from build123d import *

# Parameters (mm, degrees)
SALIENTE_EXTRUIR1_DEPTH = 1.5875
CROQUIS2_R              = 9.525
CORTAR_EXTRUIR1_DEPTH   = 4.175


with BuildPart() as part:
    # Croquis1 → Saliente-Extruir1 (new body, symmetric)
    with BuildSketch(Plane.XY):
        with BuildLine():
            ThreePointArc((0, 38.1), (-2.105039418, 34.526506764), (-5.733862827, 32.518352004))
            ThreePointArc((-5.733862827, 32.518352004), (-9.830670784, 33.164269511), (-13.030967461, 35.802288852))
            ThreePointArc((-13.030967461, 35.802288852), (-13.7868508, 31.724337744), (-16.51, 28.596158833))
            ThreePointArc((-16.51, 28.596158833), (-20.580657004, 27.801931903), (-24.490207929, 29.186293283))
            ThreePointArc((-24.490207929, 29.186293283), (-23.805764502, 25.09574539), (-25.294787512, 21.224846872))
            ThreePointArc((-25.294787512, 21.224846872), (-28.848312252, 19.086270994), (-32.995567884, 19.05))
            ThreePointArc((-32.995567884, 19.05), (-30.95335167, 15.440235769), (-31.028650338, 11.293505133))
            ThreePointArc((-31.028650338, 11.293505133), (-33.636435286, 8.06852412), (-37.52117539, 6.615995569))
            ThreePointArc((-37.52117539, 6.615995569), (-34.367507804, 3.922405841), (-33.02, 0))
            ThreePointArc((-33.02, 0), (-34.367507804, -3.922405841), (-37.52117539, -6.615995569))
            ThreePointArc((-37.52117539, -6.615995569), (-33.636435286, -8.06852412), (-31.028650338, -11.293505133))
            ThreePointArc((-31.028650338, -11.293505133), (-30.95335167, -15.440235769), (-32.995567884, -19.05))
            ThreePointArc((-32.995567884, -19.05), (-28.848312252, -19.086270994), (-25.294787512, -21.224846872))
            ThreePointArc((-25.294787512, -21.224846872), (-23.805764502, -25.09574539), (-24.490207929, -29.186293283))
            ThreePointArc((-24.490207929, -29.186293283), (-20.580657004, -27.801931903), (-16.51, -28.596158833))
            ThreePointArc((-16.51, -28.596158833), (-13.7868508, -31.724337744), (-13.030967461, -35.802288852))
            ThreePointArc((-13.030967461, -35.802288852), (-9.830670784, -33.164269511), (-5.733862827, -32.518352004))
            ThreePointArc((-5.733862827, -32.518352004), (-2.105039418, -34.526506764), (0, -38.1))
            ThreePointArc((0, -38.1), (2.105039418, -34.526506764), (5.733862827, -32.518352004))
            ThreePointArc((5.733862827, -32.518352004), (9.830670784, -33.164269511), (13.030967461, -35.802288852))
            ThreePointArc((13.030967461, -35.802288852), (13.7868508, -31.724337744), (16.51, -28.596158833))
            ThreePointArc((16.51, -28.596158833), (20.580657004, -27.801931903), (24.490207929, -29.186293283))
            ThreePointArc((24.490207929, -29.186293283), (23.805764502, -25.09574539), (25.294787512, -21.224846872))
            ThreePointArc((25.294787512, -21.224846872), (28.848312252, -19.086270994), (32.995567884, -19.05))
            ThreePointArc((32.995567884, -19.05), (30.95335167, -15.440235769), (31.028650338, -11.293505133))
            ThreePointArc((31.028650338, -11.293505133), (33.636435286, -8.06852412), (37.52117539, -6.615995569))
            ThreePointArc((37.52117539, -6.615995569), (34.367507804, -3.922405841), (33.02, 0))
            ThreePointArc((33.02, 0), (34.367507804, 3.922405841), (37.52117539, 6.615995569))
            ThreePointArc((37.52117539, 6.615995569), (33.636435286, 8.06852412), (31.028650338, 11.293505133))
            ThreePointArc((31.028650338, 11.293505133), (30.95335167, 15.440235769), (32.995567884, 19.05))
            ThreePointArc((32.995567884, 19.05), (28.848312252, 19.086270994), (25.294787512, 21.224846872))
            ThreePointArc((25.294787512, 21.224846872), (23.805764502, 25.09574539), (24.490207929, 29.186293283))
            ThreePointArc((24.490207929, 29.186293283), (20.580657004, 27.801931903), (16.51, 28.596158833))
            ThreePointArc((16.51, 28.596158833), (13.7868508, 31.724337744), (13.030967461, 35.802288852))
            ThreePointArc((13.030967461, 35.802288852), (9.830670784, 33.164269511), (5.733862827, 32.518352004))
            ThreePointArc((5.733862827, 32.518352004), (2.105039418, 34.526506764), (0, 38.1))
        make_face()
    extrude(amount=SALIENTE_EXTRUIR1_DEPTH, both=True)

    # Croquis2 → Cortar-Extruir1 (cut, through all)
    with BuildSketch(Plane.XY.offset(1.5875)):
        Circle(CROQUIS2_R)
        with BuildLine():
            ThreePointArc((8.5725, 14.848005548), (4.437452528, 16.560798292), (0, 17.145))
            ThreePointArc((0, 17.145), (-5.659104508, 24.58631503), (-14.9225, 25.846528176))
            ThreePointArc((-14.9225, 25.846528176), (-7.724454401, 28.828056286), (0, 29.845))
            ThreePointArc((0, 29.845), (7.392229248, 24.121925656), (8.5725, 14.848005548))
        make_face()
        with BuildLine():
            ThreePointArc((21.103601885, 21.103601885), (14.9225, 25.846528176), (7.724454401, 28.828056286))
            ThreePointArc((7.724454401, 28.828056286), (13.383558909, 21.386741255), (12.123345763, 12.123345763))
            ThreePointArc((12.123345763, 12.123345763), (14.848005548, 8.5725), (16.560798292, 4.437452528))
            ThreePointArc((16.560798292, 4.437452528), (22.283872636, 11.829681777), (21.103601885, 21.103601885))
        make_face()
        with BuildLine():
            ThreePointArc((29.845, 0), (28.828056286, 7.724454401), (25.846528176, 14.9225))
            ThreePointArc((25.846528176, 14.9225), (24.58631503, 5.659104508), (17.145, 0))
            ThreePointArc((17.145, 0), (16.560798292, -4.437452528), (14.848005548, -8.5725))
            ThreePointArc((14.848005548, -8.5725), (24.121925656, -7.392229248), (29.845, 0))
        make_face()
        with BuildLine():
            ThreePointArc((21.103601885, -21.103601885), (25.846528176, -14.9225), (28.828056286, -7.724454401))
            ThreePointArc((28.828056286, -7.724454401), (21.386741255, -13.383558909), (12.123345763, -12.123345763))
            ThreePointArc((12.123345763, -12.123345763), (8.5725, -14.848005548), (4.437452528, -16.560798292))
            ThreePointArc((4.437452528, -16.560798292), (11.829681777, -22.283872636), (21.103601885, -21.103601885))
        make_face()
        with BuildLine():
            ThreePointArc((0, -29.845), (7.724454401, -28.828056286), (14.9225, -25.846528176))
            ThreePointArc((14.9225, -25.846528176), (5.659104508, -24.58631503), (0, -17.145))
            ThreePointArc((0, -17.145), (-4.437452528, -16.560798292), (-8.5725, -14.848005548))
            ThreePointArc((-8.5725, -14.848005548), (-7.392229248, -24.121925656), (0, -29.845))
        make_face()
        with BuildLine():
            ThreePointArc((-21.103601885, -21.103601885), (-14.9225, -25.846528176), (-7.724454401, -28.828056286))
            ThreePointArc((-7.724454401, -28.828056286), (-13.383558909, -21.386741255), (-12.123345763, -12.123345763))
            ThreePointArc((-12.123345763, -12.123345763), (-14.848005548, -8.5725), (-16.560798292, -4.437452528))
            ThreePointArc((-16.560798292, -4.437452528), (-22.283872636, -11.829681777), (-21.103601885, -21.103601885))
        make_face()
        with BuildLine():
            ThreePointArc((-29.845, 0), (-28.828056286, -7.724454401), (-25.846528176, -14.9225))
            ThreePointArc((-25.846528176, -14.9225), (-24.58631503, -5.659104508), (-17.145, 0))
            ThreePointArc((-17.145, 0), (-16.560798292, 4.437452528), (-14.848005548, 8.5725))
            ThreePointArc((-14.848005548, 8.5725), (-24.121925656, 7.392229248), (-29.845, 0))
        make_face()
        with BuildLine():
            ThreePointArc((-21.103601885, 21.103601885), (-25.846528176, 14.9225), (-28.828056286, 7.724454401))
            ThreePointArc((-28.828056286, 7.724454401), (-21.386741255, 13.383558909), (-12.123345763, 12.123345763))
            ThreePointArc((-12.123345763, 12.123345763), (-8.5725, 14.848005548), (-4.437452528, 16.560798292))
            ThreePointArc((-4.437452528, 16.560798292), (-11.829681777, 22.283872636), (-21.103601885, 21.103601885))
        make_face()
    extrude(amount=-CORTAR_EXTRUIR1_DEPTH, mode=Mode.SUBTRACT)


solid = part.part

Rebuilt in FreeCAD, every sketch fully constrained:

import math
import FreeCAD as App
import Part
import Sketcher
Q = App.Units.Quantity

doc = App.newDocument("Part")
body = doc.addObject("PartDesign::Body", "Body")

# Sketch on XY plane
sketch1 = doc.addObject("Sketcher::SketchObject", "Sketch")
body.addObject(sketch1)
sketch1.AttachmentSupport = (doc.XY_Plane, [""])
sketch1.MapMode = "FlatFace"
sketch1.addGeometry([
    Part.ArcOfCircle(Part.Circle(App.Vector(-8, 40, 0), App.Vector(0, 0, 1), 8), math.radians(-76), math.radians(-15)),  # 0
    Part.ArcOfCircle(Part.Circle(App.Vector(-7, 40, 0), App.Vector(0, 0, 1), 8), math.radians(-145), math.radians(-84)),  # 1
    Part.ArcOfCircle(Part.Circle(App.Vector(-21, 35, 0), App.Vector(0, 0, 1), 8), math.radians(-56), math.radians(5)),  # 2
    Part.ArcOfCircle(Part.Circle(App.Vector(-20, 36, 0), App.Vector(0, 0, 1), 8), math.radians(-125), math.radians(-64)),  # 3
    Part.ArcOfCircle(Part.Circle(App.Vector(-32, 26, 0), App.Vector(0, 0, 1), 8), math.radians(-36), math.radians(25)),  # 4
    Part.ArcOfCircle(Part.Circle(App.Vector(-31, 27, 0), App.Vector(0, 0, 1), 8), math.radians(-105), math.radians(-44)),  # 5
    Part.ArcOfCircle(Part.Circle(App.Vector(-39, 14, 0), App.Vector(0, 0, 1), 8), math.radians(-16), math.radians(45)),  # 6
    Part.ArcOfCircle(Part.Circle(App.Vector(-38, 14, 0), App.Vector(0, 0, 1), 8), math.radians(-85), math.radians(-24)),  # 7
    Part.ArcOfCircle(Part.Circle(App.Vector(-41, -1, 0), App.Vector(0, 0, 1), 8), math.radians(4), math.radians(65)),  # 8
    Part.ArcOfCircle(Part.Circle(App.Vector(-41, 1, 0), App.Vector(0, 0, 1), 8), math.radians(-65), math.radians(-4)),  # 9
    Part.ArcOfCircle(Part.Circle(App.Vector(-38, -14, 0), App.Vector(0, 0, 1), 8), math.radians(24), math.radians(85)),  # 10
    Part.ArcOfCircle(Part.Circle(App.Vector(-39, -14, 0), App.Vector(0, 0, 1), 8), math.radians(-45), math.radians(16)),  # 11
    Part.ArcOfCircle(Part.Circle(App.Vector(-31, -27, 0), App.Vector(0, 0, 1), 8), math.radians(44), math.radians(105)),  # 12
    Part.ArcOfCircle(Part.Circle(App.Vector(-32, -26, 0), App.Vector(0, 0, 1), 8), math.radians(-25), math.radians(36)),  # 13
    Part.ArcOfCircle(Part.Circle(App.Vector(-20, -36, 0), App.Vector(0, 0, 1), 8), math.radians(64), math.radians(125)),  # 14
    Part.ArcOfCircle(Part.Circle(App.Vector(-21, -35, 0), App.Vector(0, 0, 1), 8), math.radians(-5), math.radians(56)),  # 15
    Part.ArcOfCircle(Part.Circle(App.Vector(-7, -40, 0), App.Vector(0, 0, 1), 8), math.radians(84), math.radians(145)),  # 16
    Part.ArcOfCircle(Part.Circle(App.Vector(-8, -40, 0), App.Vector(0, 0, 1), 8), math.radians(15), math.radians(76)),  # 17
    Part.ArcOfCircle(Part.Circle(App.Vector(8, -40, 0), App.Vector(0, 0, 1), 8), math.radians(104), math.radians(165)),  # 18
    Part.ArcOfCircle(Part.Circle(App.Vector(7, -40, 0), App.Vector(0, 0, 1), 8), math.radians(35), math.radians(96)),  # 19
    Part.ArcOfCircle(Part.Circle(App.Vector(21, -35, 0), App.Vector(0, 0, 1), 8), math.radians(124), math.radians(185)),  # 20
    Part.ArcOfCircle(Part.Circle(App.Vector(20, -36, 0), App.Vector(0, 0, 1), 8), math.radians(55), math.radians(116)),  # 21
    Part.ArcOfCircle(Part.Circle(App.Vector(32, -26, 0), App.Vector(0, 0, 1), 8), math.radians(144), math.radians(205)),  # 22
    Part.ArcOfCircle(Part.Circle(App.Vector(31, -27, 0), App.Vector(0, 0, 1), 8), math.radians(75), math.radians(136)),  # 23
    Part.ArcOfCircle(Part.Circle(App.Vector(39, -14, 0), App.Vector(0, 0, 1), 8), math.radians(164), math.radians(225)),  # 24
    Part.ArcOfCircle(Part.Circle(App.Vector(38, -14, 0), App.Vector(0, 0, 1), 8), math.radians(95), math.radians(156)),  # 25
    Part.ArcOfCircle(Part.Circle(App.Vector(41, 1, 0), App.Vector(0, 0, 1), 8), math.radians(-176), math.radians(-115)),  # 26
    Part.ArcOfCircle(Part.Circle(App.Vector(41, -1, 0), App.Vector(0, 0, 1), 8), math.radians(115), math.radians(176)),  # 27
    Part.ArcOfCircle(Part.Circle(App.Vector(38, 14, 0), App.Vector(0, 0, 1), 8), math.radians(-156), math.radians(-95)),  # 28
    Part.ArcOfCircle(Part.Circle(App.Vector(39, 14, 0), App.Vector(0, 0, 1), 8), math.radians(135), math.radians(196)),  # 29
    Part.ArcOfCircle(Part.Circle(App.Vector(31, 27, 0), App.Vector(0, 0, 1), 8), math.radians(-136), math.radians(-75)),  # 30
    Part.ArcOfCircle(Part.Circle(App.Vector(32, 26, 0), App.Vector(0, 0, 1), 8), math.radians(155), math.radians(216)),  # 31
    Part.ArcOfCircle(Part.Circle(App.Vector(20, 36, 0), App.Vector(0, 0, 1), 8), math.radians(-116), math.radians(-55)),  # 32
    Part.ArcOfCircle(Part.Circle(App.Vector(21, 35, 0), App.Vector(0, 0, 1), 8), math.radians(175), math.radians(236)),  # 33
    Part.ArcOfCircle(Part.Circle(App.Vector(7, 40, 0), App.Vector(0, 0, 1), 8), math.radians(-96), math.radians(-35)),  # 34
    Part.ArcOfCircle(Part.Circle(App.Vector(8, 40, 0), App.Vector(0, 0, 1), 8), math.radians(-165), math.radians(-104)),  # 35
], False)
sketch1.addConstraint([
    Sketcher.Constraint("Coincident", 0, 1, 1, 2),
    Sketcher.Constraint("Coincident", 1, 1, 2, 2),
    Sketcher.Constraint("Coincident", 2, 1, 3, 2),
    Sketcher.Constraint("Coincident", 3, 1, 4, 2),
    Sketcher.Constraint("Coincident", 4, 1, 5, 2),
    Sketcher.Constraint("Coincident", 5, 1, 6, 2),
    Sketcher.Constraint("Coincident", 6, 1, 7, 2),
    Sketcher.Constraint("Coincident", 7, 1, 8, 2),
    Sketcher.Constraint("Coincident", 8, 1, 9, 2),
    Sketcher.Constraint("Coincident", 9, 1, 10, 2),
    Sketcher.Constraint("Coincident", 10, 1, 11, 2),
    Sketcher.Constraint("Coincident", 11, 1, 12, 2),
    Sketcher.Constraint("Coincident", 12, 1, 13, 2),
    Sketcher.Constraint("Coincident", 13, 1, 14, 2),
    Sketcher.Constraint("Coincident", 14, 1, 15, 2),
    Sketcher.Constraint("Coincident", 15, 1, 16, 2),
    Sketcher.Constraint("Coincident", 16, 1, 17, 2),
    Sketcher.Constraint("Coincident", 17, 1, 18, 2),
    Sketcher.Constraint("Coincident", 18, 1, 19, 2),
    Sketcher.Constraint("Coincident", 19, 1, 20, 2),
    Sketcher.Constraint("Coincident", 20, 1, 21, 2),
    Sketcher.Constraint("Coincident", 21, 1, 22, 2),
    Sketcher.Constraint("Coincident", 22, 1, 23, 2),
    Sketcher.Constraint("Coincident", 23, 1, 24, 2),
    Sketcher.Constraint("Coincident", 24, 1, 25, 2),
    Sketcher.Constraint("Coincident", 25, 1, 26, 2),
    Sketcher.Constraint("Coincident", 26, 1, 27, 2),
    Sketcher.Constraint("Coincident", 27, 1, 28, 2),
    Sketcher.Constraint("Coincident", 28, 1, 29, 2),
    Sketcher.Constraint("Coincident", 29, 1, 30, 2),
    Sketcher.Constraint("Coincident", 30, 1, 31, 2),
    Sketcher.Constraint("Coincident", 31, 1, 32, 2),
    Sketcher.Constraint("Coincident", 32, 1, 33, 2),
    Sketcher.Constraint("Coincident", 33, 1, 34, 2),
    Sketcher.Constraint("Coincident", 34, 1, 35, 2),
    Sketcher.Constraint("Coincident", 35, 1, 0, 2),
    Sketcher.Constraint("Equal", 0, 1),
    Sketcher.Constraint("Equal", 1, 2),
    Sketcher.Constraint("Equal", 2, 3),
    Sketcher.Constraint("Equal", 3, 4),
    Sketcher.Constraint("Equal", 4, 5),
    Sketcher.Constraint("Equal", 5, 6),
    Sketcher.Constraint("Equal", 6, 7),
    Sketcher.Constraint("Equal", 7, 8),
    Sketcher.Constraint("Equal", 8, 9),
    Sketcher.Constraint("Equal", 9, 10),
    Sketcher.Constraint("Equal", 10, 11),
    Sketcher.Constraint("Equal", 11, 12),
    Sketcher.Constraint("Equal", 12, 13),
    Sketcher.Constraint("Equal", 13, 14),
    Sketcher.Constraint("Equal", 14, 15),
    Sketcher.Constraint("Equal", 15, 16),
    Sketcher.Constraint("Equal", 16, 17),
    Sketcher.Constraint("Equal", 17, 18),
    Sketcher.Constraint("Equal", 18, 19),
    Sketcher.Constraint("Equal", 19, 20),
    Sketcher.Constraint("Equal", 20, 21),
    Sketcher.Constraint("Equal", 21, 22),
    Sketcher.Constraint("Equal", 22, 23),
    Sketcher.Constraint("Equal", 23, 24),
    Sketcher.Constraint("Equal", 24, 25),
    Sketcher.Constraint("Equal", 25, 26),
    Sketcher.Constraint("Equal", 26, 27),
    Sketcher.Constraint("Equal", 27, 28),
    Sketcher.Constraint("Equal", 28, 29),
    Sketcher.Constraint("Equal", 29, 30),
    Sketcher.Constraint("Equal", 30, 31),
    Sketcher.Constraint("Equal", 31, 32),
    Sketcher.Constraint("Equal", 32, 33),
    Sketcher.Constraint("Equal", 33, 34),
    Sketcher.Constraint("Equal", 34, 35),
    Sketcher.Constraint("Symmetric", 0, 3, 18, 3, -1, 1),
    Sketcher.Constraint("Symmetric", 1, 3, 19, 3, -1, 1),
    Sketcher.Constraint("Symmetric", 2, 3, 20, 3, -1, 1),
    Sketcher.Constraint("Symmetric", 3, 3, 21, 3, -1, 1),
    Sketcher.Constraint("Symmetric", 4, 3, 22, 3, -1, 1),
    Sketcher.Constraint("Symmetric", 5, 3, 23, 3, -1, 1),
    Sketcher.Constraint("Symmetric", 6, 3, 24, 3, -1, 1),
    Sketcher.Constraint("Symmetric", 7, 3, 25, 3, -1, 1),
    Sketcher.Constraint("Symmetric", 8, 3, 26, 3, -1, 1),
    Sketcher.Constraint("Symmetric", 9, 3, 27, 3, -1, 1),
    Sketcher.Constraint("Symmetric", 10, 3, 28, 3, -1, 1),
    Sketcher.Constraint("Symmetric", 11, 3, 29, 3, -1, 1),
    Sketcher.Constraint("Symmetric", 12, 3, 30, 3, -1, 1),
    Sketcher.Constraint("Symmetric", 13, 3, 31, 3, -1, 1),
    Sketcher.Constraint("Symmetric", 14, 3, 32, 3, -1, 1),
    Sketcher.Constraint("Symmetric", 15, 3, 33, 3, -1, 1),
    Sketcher.Constraint("Symmetric", 16, 3, 34, 3, -1, 1),
    Sketcher.Constraint("Symmetric", 17, 3, 35, 3, -1, 1),
    Sketcher.Constraint("Symmetric", 17, 3, 18, 3, -2),
    Sketcher.Constraint("Symmetric", 16, 3, 19, 3, -2),
    Sketcher.Constraint("Symmetric", 15, 3, 20, 3, -2),
    Sketcher.Constraint("Symmetric", 14, 3, 21, 3, -2),
    Sketcher.Constraint("Symmetric", 13, 3, 22, 3, -2),
    Sketcher.Constraint("Symmetric", 12, 3, 23, 3, -2),
    Sketcher.Constraint("Symmetric", 11, 3, 24, 3, -2),
    Sketcher.Constraint("Symmetric", 10, 3, 25, 3, -2),
    Sketcher.Constraint("Symmetric", 9, 3, 26, 3, -2),
    Sketcher.Constraint("Radius", 0, Q("0.31 in")),
    Sketcher.Constraint("DistanceX", 8, 1, -1, 1, Q("1.3 in")),
    Sketcher.Constraint("DistanceY", 17, 1, -1, 1, Q("1.5 in")),
    Sketcher.Constraint("DistanceX", 2, 1, -1, 1, Q("0.65 in")),
    Sketcher.Constraint("DistanceY", -1, 1, 5, 1, Q("0.75 in")),
    Sketcher.Constraint("DistanceX", 3, 3, -1, 1, Q("0.7874001 in")),
    Sketcher.Constraint("DistanceY", -1, 1, 0, 3, 40.168652),
    Sketcher.Constraint("DistanceY", -1, 1, 1, 3, 40.344651),
    Sketcher.Constraint("DistanceY", -1, 1, 2, 3, 35.14772),
    Sketcher.Constraint("DistanceY", -1, 1, 3, 3, 35.65449),
    Sketcher.Constraint("DistanceX", 4, 3, -1, 1, 31.639861),
    Sketcher.Constraint("DistanceX", 5, 3, -1, 1, 30.988371),
    Sketcher.Constraint("DistanceY", -1, 1, 5, 3, 26.663871),
    Sketcher.Constraint("DistanceY", -1, 1, 6, 3, 13.504781),
    Sketcher.Constraint("DistanceY", 8, 3, -1, 1, 0.50677),
    Sketcher.Constraint("DistanceY", -1, 1, 1, 1, 35.802289),
    Sketcher.Constraint("DistanceX", 6, 1, -1, 1, 31.02865),
    Sketcher.Constraint("DistanceY", -1, 1, 4, 3, 25.887455),
    Sketcher.Constraint("DistanceX", 7, 3, -1, 1, 38.239124),
])
pad1 = doc.addObject("PartDesign::Pad", "Pad")
body.addObject(pad1)
pad1.Profile = sketch1
pad1.Length = Q("0.125 in")
pad1.Midplane = True

# Sketch on XY plane
sketch2 = doc.addObject("Sketcher::SketchObject", "Sketch001")
body.addObject(sketch2)
sketch2.AttachmentSupport = (doc.XY_Plane, [""])
sketch2.MapMode = "FlatFace"
sketch2.AttachmentOffset = App.Placement(App.Vector(0, 0, 0.0625 * 25.4), App.Rotation())
sketch2.addGeometry([
    Part.Circle(App.Vector(0, 0, 0), App.Vector(0, 0, 1), 10),  # 0
    Part.ArcOfCircle(Part.Circle(App.Vector(0, 0, 0), App.Vector(0, 0, 1), 17), math.radians(60), math.radians(90)),  # 1
    Part.ArcOfCircle(Part.Circle(App.Vector(-3, 18, 0), App.Vector(0, 0, 1), 12), math.radians(-15), math.radians(75)),  # 2
    Part.ArcOfCircle(Part.Circle(App.Vector(0, 0, 0), App.Vector(0, 0, 1), 30), math.radians(90), math.radians(120)),  # 3
    Part.ArcOfCircle(Part.Circle(App.Vector(-12, 14, 0), App.Vector(0, 0, 1), 12), math.radians(15), math.radians(105)),  # 4
    Part.ArcOfCircle(Part.Circle(App.Vector(0, 0, 0), App.Vector(0, 0, 1), 30), math.radians(45), math.radians(75)),  # 5
    Part.ArcOfCircle(Part.Circle(App.Vector(2, 18, 0), App.Vector(0, 0, 1), 12), math.radians(-30), math.radians(60)),  # 6
    Part.ArcOfCircle(Part.Circle(App.Vector(0, 0, 0), App.Vector(0, 0, 1), 17), math.radians(15), math.radians(45)),  # 7
    Part.ArcOfCircle(Part.Circle(App.Vector(10, 15, 0), App.Vector(0, 0, 1), 12), math.radians(-60), math.radians(30)),  # 8
    Part.ArcOfCircle(Part.Circle(App.Vector(0, 0, 0), App.Vector(0, 0, 1), 30), math.radians(0), math.radians(30)),  # 9
    Part.ArcOfCircle(Part.Circle(App.Vector(14, 12, 0), App.Vector(0, 0, 1), 12), math.radians(-75), math.radians(15)),  # 10
    Part.ArcOfCircle(Part.Circle(App.Vector(0, 0, 0), App.Vector(0, 0, 1), 17), math.radians(-30), math.radians(0)),  # 11
    Part.ArcOfCircle(Part.Circle(App.Vector(18, 3, 0), App.Vector(0, 0, 1), 12), math.radians(-105), math.radians(-15)),  # 12
    Part.ArcOfCircle(Part.Circle(App.Vector(0, 0, 0), App.Vector(0, 0, 1), 30), math.radians(-45), math.radians(-15)),  # 13
    Part.ArcOfCircle(Part.Circle(App.Vector(18, -2, 0), App.Vector(0, 0, 1), 12), math.radians(-120), math.radians(-30)),  # 14
    Part.ArcOfCircle(Part.Circle(App.Vector(0, 0, 0), App.Vector(0, 0, 1), 17), math.radians(-75), math.radians(-45)),  # 15
    Part.ArcOfCircle(Part.Circle(App.Vector(15, -10, 0), App.Vector(0, 0, 1), 12), math.radians(-150), math.radians(-60)),  # 16
    Part.ArcOfCircle(Part.Circle(App.Vector(0, 0, 0), App.Vector(0, 0, 1), 30), math.radians(-90), math.radians(-60)),  # 17
    Part.ArcOfCircle(Part.Circle(App.Vector(12, -14, 0), App.Vector(0, 0, 1), 12), math.radians(-165), math.radians(-75)),  # 18
    Part.ArcOfCircle(Part.Circle(App.Vector(0, 0, 0), App.Vector(0, 0, 1), 17), math.radians(-120), math.radians(-90)),  # 19
    Part.ArcOfCircle(Part.Circle(App.Vector(3, -18, 0), App.Vector(0, 0, 1), 12), math.radians(165), math.radians(255)),  # 20
    Part.ArcOfCircle(Part.Circle(App.Vector(0, 0, 0), App.Vector(0, 0, 1), 30), math.radians(-135), math.radians(-105)),  # 21
    Part.ArcOfCircle(Part.Circle(App.Vector(-2, -18, 0), App.Vector(0, 0, 1), 12), math.radians(150), math.radians(240)),  # 22
    Part.ArcOfCircle(Part.Circle(App.Vector(0, 0, 0), App.Vector(0, 0, 1), 17), math.radians(-165), math.radians(-135)),  # 23
    Part.ArcOfCircle(Part.Circle(App.Vector(-10, -15, 0), App.Vector(0, 0, 1), 12), math.radians(120), math.radians(210)),  # 24
    Part.ArcOfCircle(Part.Circle(App.Vector(0, 0, 0), App.Vector(0, 0, 1), 30), math.radians(180), math.radians(210)),  # 25
    Part.ArcOfCircle(Part.Circle(App.Vector(-14, -12, 0), App.Vector(0, 0, 1), 12), math.radians(105), math.radians(195)),  # 26
    Part.ArcOfCircle(Part.Circle(App.Vector(0, 0, 0), App.Vector(0, 0, 1), 17), math.radians(150), math.radians(180)),  # 27
    Part.ArcOfCircle(Part.Circle(App.Vector(-18, -3, 0), App.Vector(0, 0, 1), 12), math.radians(75), math.radians(165)),  # 28
    Part.ArcOfCircle(Part.Circle(App.Vector(0, 0, 0), App.Vector(0, 0, 1), 30), math.radians(135), math.radians(165)),  # 29
    Part.ArcOfCircle(Part.Circle(App.Vector(-18, 2, 0), App.Vector(0, 0, 1), 12), math.radians(60), math.radians(150)),  # 30
    Part.ArcOfCircle(Part.Circle(App.Vector(0, 0, 0), App.Vector(0, 0, 1), 17), math.radians(105), math.radians(135)),  # 31
    Part.ArcOfCircle(Part.Circle(App.Vector(-15, 10, 0), App.Vector(0, 0, 1), 12), math.radians(30), math.radians(120)),  # 32
], False)
sketch2.addConstraint([
    Sketcher.Constraint("Coincident", 1, 1, 2, 1),
    Sketcher.Constraint("Coincident", 2, 2, 3, 1),
    Sketcher.Constraint("Coincident", 3, 2, 4, 2),
    Sketcher.Constraint("Coincident", 4, 1, 1, 2),
    Sketcher.Constraint("Coincident", 5, 2, 6, 2),
    Sketcher.Constraint("Coincident", 6, 1, 7, 2),
    Sketcher.Constraint("Coincident", 7, 1, 8, 1),
    Sketcher.Constraint("Coincident", 8, 2, 5, 1),
    Sketcher.Constraint("Coincident", 9, 2, 10, 2),
    Sketcher.Constraint("Coincident", 10, 1, 11, 2),
    Sketcher.Constraint("Coincident", 11, 1, 12, 1),
    Sketcher.Constraint("Coincident", 12, 2, 9, 1),
    Sketcher.Constraint("Coincident", 13, 2, 14, 2),
    Sketcher.Constraint("Coincident", 14, 1, 15, 2),
    Sketcher.Constraint("Coincident", 15, 1, 16, 1),
    Sketcher.Constraint("Coincident", 16, 2, 13, 1),
    Sketcher.Constraint("Coincident", 17, 2, 18, 2),
    Sketcher.Constraint("Coincident", 18, 1, 19, 2),
    Sketcher.Constraint("Coincident", 19, 1, 20, 1),
    Sketcher.Constraint("Coincident", 20, 2, 17, 1),
    Sketcher.Constraint("Coincident", 21, 2, 22, 2),
    Sketcher.Constraint("Coincident", 22, 1, 23, 2),
    Sketcher.Constraint("Coincident", 23, 1, 24, 1),
    Sketcher.Constraint("Coincident", 24, 2, 21, 1),
    Sketcher.Constraint("Coincident", 25, 2, 26, 2),
    Sketcher.Constraint("Coincident", 26, 1, 27, 2),
    Sketcher.Constraint("Coincident", 27, 1, 28, 1),
    Sketcher.Constraint("Coincident", 28, 2, 25, 1),
    Sketcher.Constraint("Coincident", 29, 2, 30, 2),
    Sketcher.Constraint("Coincident", 30, 1, 31, 2),
    Sketcher.Constraint("Coincident", 31, 1, 32, 1),
    Sketcher.Constraint("Coincident", 32, 2, 29, 1),
    Sketcher.Constraint("Coincident", 0, 3, -1, 1),
    Sketcher.Constraint("Coincident", 1, 3, -1, 1),
    Sketcher.Constraint("Coincident", 3, 3, -1, 1),
    Sketcher.Constraint("Coincident", 5, 3, -1, 1),
    Sketcher.Constraint("Coincident", 7, 3, -1, 1),
    Sketcher.Constraint("Coincident", 9, 3, -1, 1),
    Sketcher.Constraint("Coincident", 11, 3, -1, 1),
    Sketcher.Constraint("Coincident", 13, 3, -1, 1),
    Sketcher.Constraint("Coincident", 15, 3, -1, 1),
    Sketcher.Constraint("Coincident", 17, 3, -1, 1),
    Sketcher.Constraint("Coincident", 19, 3, -1, 1),
    Sketcher.Constraint("Coincident", 21, 3, -1, 1),
    Sketcher.Constraint("Coincident", 23, 3, -1, 1),
    Sketcher.Constraint("Coincident", 25, 3, -1, 1),
    Sketcher.Constraint("Coincident", 27, 3, -1, 1),
    Sketcher.Constraint("Coincident", 29, 3, -1, 1),
    Sketcher.Constraint("Coincident", 31, 3, -1, 1),
    Sketcher.Constraint("Equal", 2, 4),
    Sketcher.Constraint("Equal", 3, 5),
    Sketcher.Constraint("Equal", 4, 6),
    Sketcher.Constraint("Equal", 1, 7),
    Sketcher.Constraint("Equal", 6, 8),
    Sketcher.Constraint("Equal", 5, 9),
    Sketcher.Constraint("Equal", 8, 10),
    Sketcher.Constraint("Equal", 7, 11),
    Sketcher.Constraint("Equal", 10, 12),
    Sketcher.Constraint("Equal", 9, 13),
    Sketcher.Constraint("Equal", 12, 14),
    Sketcher.Constraint("Equal", 11, 15),
    Sketcher.Constraint("Equal", 14, 16),
    Sketcher.Constraint("Equal", 13, 17),
    Sketcher.Constraint("Equal", 16, 18),
    Sketcher.Constraint("Equal", 15, 19),
    Sketcher.Constraint("Equal", 18, 20),
    Sketcher.Constraint("Equal", 17, 21),
    Sketcher.Constraint("Equal", 20, 22),
    Sketcher.Constraint("Equal", 19, 23),
    Sketcher.Constraint("Equal", 22, 24),
    Sketcher.Constraint("Equal", 21, 25),
    Sketcher.Constraint("Equal", 24, 26),
    Sketcher.Constraint("Equal", 23, 27),
    Sketcher.Constraint("Equal", 26, 28),
    Sketcher.Constraint("Equal", 25, 29),
    Sketcher.Constraint("Equal", 28, 30),
    Sketcher.Constraint("Equal", 27, 31),
    Sketcher.Constraint("Equal", 30, 32),
    Sketcher.Constraint("Symmetric", 4, 3, 18, 3, -1, 1),
    Sketcher.Constraint("Symmetric", 2, 3, 20, 3, -1, 1),
    Sketcher.Constraint("Symmetric", 6, 3, 22, 3, -1, 1),
    Sketcher.Constraint("Symmetric", 8, 3, 24, 3, -1, 1),
    Sketcher.Constraint("Symmetric", 10, 3, 26, 3, -1, 1),
    Sketcher.Constraint("Symmetric", 12, 3, 28, 3, -1, 1),
    Sketcher.Constraint("Symmetric", 14, 3, 30, 3, -1, 1),
    Sketcher.Constraint("Symmetric", 16, 3, 32, 3, -1, 1),
    Sketcher.Constraint("PointOnObject", 2, 2, -2),
    Sketcher.Constraint("PointOnObject", 4, 1, -2),
    Sketcher.Constraint("PointOnObject", 10, 1, -1),
    Sketcher.Constraint("PointOnObject", 12, 2, -1),
    Sketcher.Constraint("Horizontal", 14, 1, 22, 1),
    Sketcher.Constraint("Horizontal", 16, 2, 24, 2),
    Sketcher.Constraint("Diameter", 0, Q("0.75 in")),
    Sketcher.Constraint("Radius", 1, Q("0.675 in")),
    Sketcher.Constraint("Radius", 3, Q("1.175 in")),
    Sketcher.Constraint("DistanceX", -1, 1, 7, 1, Q("0.6519999 in")),
    Sketcher.Constraint("DistanceY", 15, 1, -1, 1, Q("0.6519999 in")),
    Sketcher.Constraint("DistanceX", -1, 1, 1, 1, Q("0.3375 in")),
    Sketcher.Constraint("DistanceX", 3, 2, -1, 1, Q("0.5875 in")),
    Sketcher.Constraint("DistanceY", -1, 1, 9, 2, Q("0.5875 in")),
    Sketcher.Constraint("DistanceY", 11, 1, -1, 1, Q("0.3375 in")),
    Sketcher.Constraint("Radius", 2, 12.214696),
    Sketcher.Constraint("DistanceX", -1, 1, 8, 2, 21.103602),
    Sketcher.Constraint("DistanceX", -1, 1, 6, 3, 1.571545),
    Sketcher.Constraint("DistanceY", -1, 1, 6, 3, 18.276255),
    Sketcher.Constraint("DistanceX", -1, 1, 14, 3, 18.276255),
])
pocket1 = doc.addObject("PartDesign::Pocket", "Pocket")
body.addObject(pocket1)
pocket1.Profile = sketch2
pocket1.Type = "ThroughAll"

doc.recompute()
